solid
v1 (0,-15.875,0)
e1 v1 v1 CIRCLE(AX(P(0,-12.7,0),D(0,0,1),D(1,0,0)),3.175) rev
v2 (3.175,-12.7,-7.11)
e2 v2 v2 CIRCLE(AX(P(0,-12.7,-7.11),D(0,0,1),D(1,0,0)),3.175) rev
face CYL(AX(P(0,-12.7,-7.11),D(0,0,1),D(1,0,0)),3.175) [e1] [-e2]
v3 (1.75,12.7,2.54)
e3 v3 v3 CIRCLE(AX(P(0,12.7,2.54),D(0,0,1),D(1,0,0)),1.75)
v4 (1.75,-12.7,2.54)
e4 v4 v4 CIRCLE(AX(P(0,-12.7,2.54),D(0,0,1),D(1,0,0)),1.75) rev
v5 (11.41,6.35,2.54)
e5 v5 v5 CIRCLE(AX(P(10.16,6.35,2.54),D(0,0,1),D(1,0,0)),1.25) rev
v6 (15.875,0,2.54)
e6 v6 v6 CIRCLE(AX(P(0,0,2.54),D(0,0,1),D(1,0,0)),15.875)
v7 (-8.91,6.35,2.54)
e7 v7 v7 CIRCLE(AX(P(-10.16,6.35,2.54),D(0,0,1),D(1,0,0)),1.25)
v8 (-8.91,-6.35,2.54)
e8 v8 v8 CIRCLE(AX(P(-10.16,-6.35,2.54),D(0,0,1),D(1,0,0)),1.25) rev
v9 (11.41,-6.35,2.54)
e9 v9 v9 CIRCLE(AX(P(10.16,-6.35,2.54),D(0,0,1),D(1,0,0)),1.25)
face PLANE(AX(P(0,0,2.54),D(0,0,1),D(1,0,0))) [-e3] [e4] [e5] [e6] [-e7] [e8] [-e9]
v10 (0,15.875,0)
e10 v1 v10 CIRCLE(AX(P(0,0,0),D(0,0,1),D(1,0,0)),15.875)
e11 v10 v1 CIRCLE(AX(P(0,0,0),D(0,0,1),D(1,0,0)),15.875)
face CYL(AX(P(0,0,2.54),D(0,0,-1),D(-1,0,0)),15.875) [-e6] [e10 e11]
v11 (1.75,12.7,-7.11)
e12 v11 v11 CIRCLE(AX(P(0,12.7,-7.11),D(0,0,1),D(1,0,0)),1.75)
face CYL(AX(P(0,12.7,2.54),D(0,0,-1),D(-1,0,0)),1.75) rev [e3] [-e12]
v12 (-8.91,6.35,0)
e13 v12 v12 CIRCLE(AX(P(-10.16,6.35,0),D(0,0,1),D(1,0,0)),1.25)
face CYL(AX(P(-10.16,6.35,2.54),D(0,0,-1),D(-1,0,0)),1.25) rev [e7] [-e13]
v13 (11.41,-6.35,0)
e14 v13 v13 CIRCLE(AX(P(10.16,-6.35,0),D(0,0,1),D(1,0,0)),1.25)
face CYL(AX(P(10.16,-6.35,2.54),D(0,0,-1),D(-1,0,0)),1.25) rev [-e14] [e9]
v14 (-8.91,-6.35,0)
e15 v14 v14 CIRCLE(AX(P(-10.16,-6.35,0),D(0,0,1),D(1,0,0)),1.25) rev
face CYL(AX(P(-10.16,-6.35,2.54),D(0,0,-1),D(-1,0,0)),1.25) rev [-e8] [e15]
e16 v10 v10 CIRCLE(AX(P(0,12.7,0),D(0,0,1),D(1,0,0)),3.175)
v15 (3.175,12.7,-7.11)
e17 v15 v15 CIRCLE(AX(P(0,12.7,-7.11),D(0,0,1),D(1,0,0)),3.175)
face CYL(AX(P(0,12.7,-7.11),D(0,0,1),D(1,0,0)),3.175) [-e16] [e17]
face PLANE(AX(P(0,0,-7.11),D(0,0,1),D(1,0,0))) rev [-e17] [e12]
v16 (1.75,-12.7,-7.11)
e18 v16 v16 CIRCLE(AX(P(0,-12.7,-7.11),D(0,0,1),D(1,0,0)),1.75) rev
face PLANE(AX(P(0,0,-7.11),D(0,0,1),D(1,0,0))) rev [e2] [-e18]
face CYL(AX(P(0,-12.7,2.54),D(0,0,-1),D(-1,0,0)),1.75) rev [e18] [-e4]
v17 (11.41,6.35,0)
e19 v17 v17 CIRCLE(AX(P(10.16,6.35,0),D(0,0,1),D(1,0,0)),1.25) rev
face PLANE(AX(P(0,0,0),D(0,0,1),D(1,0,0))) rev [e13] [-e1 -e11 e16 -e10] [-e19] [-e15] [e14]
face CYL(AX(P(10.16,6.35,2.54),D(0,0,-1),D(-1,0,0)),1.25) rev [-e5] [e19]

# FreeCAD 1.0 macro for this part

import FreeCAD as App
import Part
import Sketcher

V = App.Vector
Q = App.Units.Quantity

doc = App.newDocument("Part")
body = doc.addObject("PartDesign::Body", "Body")

# Sketch on XY plane
sketch1 = doc.addObject("Sketcher::SketchObject", "Sketch")
body.addObject(sketch1)
sketch1.AttachmentSupport = (doc.XY_Plane, [""])
sketch1.MapMode = "FlatFace"
sketch1.addGeometry([
    Part.Circle(V(0, 0, 0), V(0, 0, 1), 15.9),  # 0
    Part.Circle(V(-10.2, -6.3, 0), V(0, 0, 1), 1.2),  # 1
    Part.Circle(V(0, -12.7, 0), V(0, 0, 1), 1.8),  # 2
    Part.Circle(V(10.2, -6.3, 0), V(0, 0, 1), 1.2),  # 3
    Part.Circle(V(-10.2, 6.3, 0), V(0, 0, 1), 1.2),  # 4
    Part.Circle(V(10.2, 6.3, 0), V(0, 0, 1), 1.2),  # 5
    Part.Circle(V(0, 12.7, 0), V(0, 0, 1), 1.8),  # 6
], False)
sketch1.addConstraint([
    Sketcher.Constraint("Coincident", 0, 3, -1, 1),
    Sketcher.Constraint("Equal", 1, 3),
    Sketcher.Constraint("Equal", 3, 4),
    Sketcher.Constraint("Equal", 4, 5),
    Sketcher.Constraint("Equal", 2, 6),
    Sketcher.Constraint("Symmetric", 3, 3, 4, 3, -1, 1),
    Sketcher.Constraint("Symmetric", 1, 3, 5, 3, -1, 1),
    Sketcher.Constraint("Symmetric", 2, 3, 6, 3, -1, 1),
    Sketcher.Constraint("Symmetric", 1, 3, 3, 3, -2),
    Sketcher.Constraint("PointOnObject", 2, 3, -2),
    Sketcher.Constraint("Diameter", 0, Q("1.25 in")),
    Sketcher.Constraint("DistanceX", 1, 3, -1, 1, Q("0.4 in")),
    Sketcher.Constraint("DistanceY", 2, 3, -1, 1, Q("0.5 in")),
    Sketcher.Constraint("DistanceY", 1, 3, 4, 3, Q("0.5 in")),
    Sketcher.Constraint("Diameter", 1, 2.5),
    Sketcher.Constraint("Diameter", 2, 3.5),
])
pad1 = doc.addObject("PartDesign::Pad", "Pad")
body.addObject(pad1)
pad1.Profile = sketch1
pad1.Length = Q("0.1 in")

# Sketch on XY plane
sketch2 = doc.addObject("Sketcher::SketchObject", "Sketch001")
body.addObject(sketch2)
sketch2.AttachmentSupport = (doc.XY_Plane, [""])
sketch2.MapMode = "FlatFace"
sketch2.AttachmentOffset = App.Placement(V(0, 0, -7.11), App.Rotation())
sketch2.addGeometry([
    Part.Circle(V(0, 12.7, 0), V(0, 0, 1), 3.2),
    Part.Circle(V(0, 12.7, 0), V(0, 0, 1), 1.8),
    Part.Circle(V(0, -12.7, 0), V(0, 0, 1), 3.2),
    Part.Circle(V(0, -12.7, 0), V(0, 0, 1), 1.8),
], False)
sketch2.addConstraint([
    Sketcher.Constraint("Coincident", 1, 3, 0, 3),
    Sketcher.Constraint("Coincident", 3, 3, 2, 3),
    Sketcher.Constraint("Equal", 0, 2),
    Sketcher.Constraint("Equal", 1, 3),
    Sketcher.Constraint("Symmetric", 0, 3, 2, 3, -1, 1),
    Sketcher.Constraint("PointOnObject", 0, 3, -2),
    Sketcher.Constraint("Diameter", 0, Q("0.25 in")),
    Sketcher.Constraint("DistanceY", 2, 3, 0, 3, Q("1 in")),
    Sketcher.Constraint("Diameter", 1, 3.5),
])
pad2 = doc.addObject("PartDesign::Pad", "Pad001")
body.addObject(pad2)
pad2.Profile = sketch2
pad2.Length = 7.11

doc.recompute()
